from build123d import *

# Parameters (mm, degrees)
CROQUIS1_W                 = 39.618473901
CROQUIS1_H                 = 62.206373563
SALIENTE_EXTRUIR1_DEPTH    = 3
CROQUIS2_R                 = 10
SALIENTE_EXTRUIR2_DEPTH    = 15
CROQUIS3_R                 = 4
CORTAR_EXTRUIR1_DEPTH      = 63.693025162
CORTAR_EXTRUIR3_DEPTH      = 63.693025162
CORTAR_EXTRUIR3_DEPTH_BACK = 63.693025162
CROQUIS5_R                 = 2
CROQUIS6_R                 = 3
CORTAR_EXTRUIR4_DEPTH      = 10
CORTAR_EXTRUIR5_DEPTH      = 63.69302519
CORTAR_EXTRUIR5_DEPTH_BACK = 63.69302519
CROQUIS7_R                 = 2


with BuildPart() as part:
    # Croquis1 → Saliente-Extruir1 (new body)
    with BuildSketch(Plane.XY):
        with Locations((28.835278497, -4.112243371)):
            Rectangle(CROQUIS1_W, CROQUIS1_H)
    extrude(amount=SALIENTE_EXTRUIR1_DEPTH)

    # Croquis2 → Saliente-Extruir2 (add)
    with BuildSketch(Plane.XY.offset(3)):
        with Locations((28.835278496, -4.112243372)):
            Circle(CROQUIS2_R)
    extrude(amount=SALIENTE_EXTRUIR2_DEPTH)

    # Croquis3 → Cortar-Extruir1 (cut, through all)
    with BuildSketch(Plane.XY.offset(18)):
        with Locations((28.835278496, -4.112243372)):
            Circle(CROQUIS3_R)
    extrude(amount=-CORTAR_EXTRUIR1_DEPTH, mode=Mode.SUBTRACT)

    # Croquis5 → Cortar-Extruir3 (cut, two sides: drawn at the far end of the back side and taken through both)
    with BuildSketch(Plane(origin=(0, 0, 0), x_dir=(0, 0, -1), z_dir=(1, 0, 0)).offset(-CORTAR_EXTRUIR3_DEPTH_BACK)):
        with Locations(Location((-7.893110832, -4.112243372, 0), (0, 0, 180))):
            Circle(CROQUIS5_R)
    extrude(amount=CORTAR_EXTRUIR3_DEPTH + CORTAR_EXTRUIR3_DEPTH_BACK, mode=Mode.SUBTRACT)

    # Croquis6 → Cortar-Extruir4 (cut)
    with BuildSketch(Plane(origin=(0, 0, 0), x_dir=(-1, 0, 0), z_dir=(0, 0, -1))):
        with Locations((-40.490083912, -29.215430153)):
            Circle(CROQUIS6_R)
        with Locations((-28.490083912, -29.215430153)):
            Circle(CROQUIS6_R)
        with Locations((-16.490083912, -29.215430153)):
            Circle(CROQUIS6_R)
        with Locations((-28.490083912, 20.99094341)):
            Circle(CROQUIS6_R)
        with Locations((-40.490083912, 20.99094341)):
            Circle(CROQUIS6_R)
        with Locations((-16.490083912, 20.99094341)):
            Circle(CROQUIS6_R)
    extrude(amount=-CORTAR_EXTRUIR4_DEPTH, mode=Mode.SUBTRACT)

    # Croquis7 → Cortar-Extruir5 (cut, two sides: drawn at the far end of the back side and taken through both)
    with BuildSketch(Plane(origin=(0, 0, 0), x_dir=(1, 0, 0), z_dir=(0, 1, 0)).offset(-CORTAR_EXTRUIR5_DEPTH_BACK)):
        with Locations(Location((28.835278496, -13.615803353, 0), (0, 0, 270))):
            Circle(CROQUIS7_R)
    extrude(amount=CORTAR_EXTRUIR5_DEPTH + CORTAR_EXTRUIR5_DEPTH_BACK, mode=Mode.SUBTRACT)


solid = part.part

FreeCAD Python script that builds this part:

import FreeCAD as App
import Part
import Sketcher
Q = App.Units.Quantity


def add_polygon(sketch, points):
    """Adds a closed chain of lines whose ends are joined by coincident constraints."""
    first, n = sketch.GeometryCount, len(points)
    for a, b in zip(points, points[1:] + points[:1]):
        sketch.addGeometry(Part.LineSegment(App.Vector(*a, 0), App.Vector(*b, 0)), False)
    for i in range(n):
        sketch.addConstraint(Sketcher.Constraint("Coincident", first + i, 2, first + (i + 1) % n, 1))

doc = App.newDocument("Part")
body = doc.addObject("PartDesign::Body", "Body")

sketch1 = body.newObject("Sketcher::SketchObject", "Sketch")
sketch1.AttachmentSupport = (doc.getObject("XY_Plane"), [""])
sketch1.MapMode = "FlatFace"
add_polygon(sketch1, [(9, 27), (9, -35), (49, -35), (49, 27)])
sketch1.addConstraint([
    Sketcher.Constraint("Vertical", 0),
    Sketcher.Constraint("Horizontal", 1),
    Sketcher.Constraint("Vertical", 2),
    Sketcher.Constraint("Horizontal", 3),
    Sketcher.Constraint("DistanceX", 1, 1, 1, 2, Q("39.618474 mm")),
    Sketcher.Constraint("DistanceY", 0, 2, 0, 1, Q("62.206374 mm")),
    Sketcher.Constraint("DistanceX", -1, 1, 0, 2, Q("9.026042 mm")),
    Sketcher.Constraint("DistanceY", 0, 2, -1, 1, Q("35.21543 mm")),
])
pad1 = body.newObject("PartDesign::Pad", "Pad")
pad1.Profile = sketch1
pad1.Length = 3

sketch2 = body.newObject("Sketcher::SketchObject", "Sketch001")
sketch2.AttachmentSupport = (doc.getObject("XY_Plane"), [""])
sketch2.MapMode = "FlatFace"
sketch2.AttachmentOffset = App.Placement(App.Vector(0, 0, 3), App.Rotation())
sketch2.addGeometry(Part.Circle(App.Vector(29, -4, 0), App.Vector(0, 0, 1), 10), False)
sketch2.addConstraint([
    Sketcher.Constraint("Diameter", 0, Q("20 mm")),
    Sketcher.Constraint("DistanceX", -1, 1, 0, 3, Q("28.835278 mm")),
    Sketcher.Constraint("DistanceY", 0, 3, -1, 1, Q("4.112243 mm")),
])
pad2 = body.newObject("PartDesign::Pad", "Pad001")
pad2.Profile = sketch2
pad2.Length = 15

sketch3 = body.newObject("Sketcher::SketchObject", "Sketch002")
sketch3.AttachmentSupport = (doc.getObject("XY_Plane"), [""])
sketch3.MapMode = "FlatFace"
sketch3.AttachmentOffset = App.Placement(App.Vector(0, 0, 18), App.Rotation())
sketch3.addGeometry(Part.Circle(App.Vector(28.8, -4.1, 0), App.Vector(0, 0, 1), 4), False)
sketch3.addConstraint([
    Sketcher.Constraint("Diameter", 0, Q("8 mm")),
    Sketcher.Constraint("DistanceX", -1, 1, 0, 3, Q("28.835278 mm")),
    Sketcher.Constraint("DistanceY", 0, 3, -1, 1, Q("4.112243 mm")),
])
pocket1 = body.newObject("PartDesign::Pocket", "Pocket")
pocket1.Profile = sketch3
pocket1.Type = "ThroughAll"

sketch4 = body.newObject("Sketcher::SketchObject", "Sketch003")
sketch4.AttachmentSupport = (doc.getObject("YZ_Plane"), [""])
sketch4.MapMode = "FlatFace"
sketch4.addGeometry(Part.Circle(App.Vector(-4.1, 7.9, 0), App.Vector(0, 0, 1), 2), False)
sketch4.addConstraint([
    Sketcher.Constraint("Diameter", 0, Q("4 mm")),
    Sketcher.Constraint("DistanceY", -1, 1, 0, 3, Q("7.893111 mm")),
    Sketcher.Constraint("DistanceX", 0, 3, -1, 1, Q("4.112243 mm")),
])
pocket2 = body.newObject("PartDesign::Pocket", "Pocket001")
pocket2.Profile = sketch4
pocket2.Type = "ThroughAll"
pocket2.Midplane = True

sketch5 = body.newObject("Sketcher::SketchObject", "Sketch004")
sketch5.AttachmentSupport = (doc.getObject("XY_Plane"), [""])
sketch5.MapMode = "FlatFace"
sketch5.addGeometry([
    Part.Circle(App.Vector(40.5, -29.2, 0), App.Vector(0, 0, 1), 3),
    Part.Circle(App.Vector(28.5, -29.2, 0), App.Vector(0, 0, 1), 3),
    Part.Circle(App.Vector(16.5, -29.2, 0), App.Vector(0, 0, 1), 3),
    Part.Circle(App.Vector(28.5, 21, 0), App.Vector(0, 0, 1), 3),
    Part.Circle(App.Vector(40.5, 21, 0), App.Vector(0, 0, 1), 3),
    Part.Circle(App.Vector(16.5, 21, 0), App.Vector(0, 0, 1), 3),
], False)
sketch5.addConstraint([
    Sketcher.Constraint("Equal", 0, 1),
    Sketcher.Constraint("Equal", 1, 2),
    Sketcher.Constraint("Equal", 2, 3),
    Sketcher.Constraint("Equal", 3, 4),
    Sketcher.Constraint("Equal", 4, 5),
    Sketcher.Constraint("Horizontal", 0, 3, 1, 3),
    Sketcher.Constraint("Horizontal", 1, 3, 2, 3),
    Sketcher.Constraint("Horizontal", 3, 3, 4, 3),
    Sketcher.Constraint("Horizontal", 4, 3, 5, 3),
    Sketcher.Constraint("Vertical", 1, 3, 3, 3),
    Sketcher.Constraint("Vertical", 0, 3, 4, 3),
    Sketcher.Constraint("Vertical", 2, 3, 5, 3),
    Sketcher.Constraint("Diameter", 0, Q("6 mm")),
    Sketcher.Constraint("DistanceX", 1, 3, 0, 3, Q("12 mm")),
    Sketcher.Constraint("DistanceX", 2, 3, 1, 3, Q("12 mm")),
    Sketcher.Constraint("DistanceY", 0, 3, -1, 1, Q("29.21543 mm")),
    Sketcher.Constraint("DistanceX", -1, 1, 0, 3, Q("40.490084 mm")),
    Sketcher.Constraint("DistanceY", -1, 1, 3, 3, Q("20.990943 mm")),
])
pocket3 = body.newObject("PartDesign::Pocket", "Pocket002")
pocket3.Profile = sketch5
pocket3.Length = 10
pocket3.Reversed = True

sketch6 = body.newObject("Sketcher::SketchObject", "Sketch005")
sketch6.AttachmentSupport = (doc.getObject("XZ_Plane"), [""])
sketch6.MapMode = "FlatFace"
sketch6.addGeometry(Part.Circle(App.Vector(28.8, 13.6, 0), App.Vector(0, 0, 1), 2), False)
sketch6.addConstraint([
    Sketcher.Constraint("Diameter", 0, Q("4 mm")),
    Sketcher.Constraint("DistanceX", -1, 1, 0, 3, Q("28.835278 mm")),
    Sketcher.Constraint("DistanceY", -1, 1, 0, 3, Q("13.615803 mm")),
])
pocket4 = body.newObject("PartDesign::Pocket", "Pocket003")
pocket4.Profile = sketch6
pocket4.Type = "ThroughAll"
pocket4.Midplane = True

doc.recompute()
